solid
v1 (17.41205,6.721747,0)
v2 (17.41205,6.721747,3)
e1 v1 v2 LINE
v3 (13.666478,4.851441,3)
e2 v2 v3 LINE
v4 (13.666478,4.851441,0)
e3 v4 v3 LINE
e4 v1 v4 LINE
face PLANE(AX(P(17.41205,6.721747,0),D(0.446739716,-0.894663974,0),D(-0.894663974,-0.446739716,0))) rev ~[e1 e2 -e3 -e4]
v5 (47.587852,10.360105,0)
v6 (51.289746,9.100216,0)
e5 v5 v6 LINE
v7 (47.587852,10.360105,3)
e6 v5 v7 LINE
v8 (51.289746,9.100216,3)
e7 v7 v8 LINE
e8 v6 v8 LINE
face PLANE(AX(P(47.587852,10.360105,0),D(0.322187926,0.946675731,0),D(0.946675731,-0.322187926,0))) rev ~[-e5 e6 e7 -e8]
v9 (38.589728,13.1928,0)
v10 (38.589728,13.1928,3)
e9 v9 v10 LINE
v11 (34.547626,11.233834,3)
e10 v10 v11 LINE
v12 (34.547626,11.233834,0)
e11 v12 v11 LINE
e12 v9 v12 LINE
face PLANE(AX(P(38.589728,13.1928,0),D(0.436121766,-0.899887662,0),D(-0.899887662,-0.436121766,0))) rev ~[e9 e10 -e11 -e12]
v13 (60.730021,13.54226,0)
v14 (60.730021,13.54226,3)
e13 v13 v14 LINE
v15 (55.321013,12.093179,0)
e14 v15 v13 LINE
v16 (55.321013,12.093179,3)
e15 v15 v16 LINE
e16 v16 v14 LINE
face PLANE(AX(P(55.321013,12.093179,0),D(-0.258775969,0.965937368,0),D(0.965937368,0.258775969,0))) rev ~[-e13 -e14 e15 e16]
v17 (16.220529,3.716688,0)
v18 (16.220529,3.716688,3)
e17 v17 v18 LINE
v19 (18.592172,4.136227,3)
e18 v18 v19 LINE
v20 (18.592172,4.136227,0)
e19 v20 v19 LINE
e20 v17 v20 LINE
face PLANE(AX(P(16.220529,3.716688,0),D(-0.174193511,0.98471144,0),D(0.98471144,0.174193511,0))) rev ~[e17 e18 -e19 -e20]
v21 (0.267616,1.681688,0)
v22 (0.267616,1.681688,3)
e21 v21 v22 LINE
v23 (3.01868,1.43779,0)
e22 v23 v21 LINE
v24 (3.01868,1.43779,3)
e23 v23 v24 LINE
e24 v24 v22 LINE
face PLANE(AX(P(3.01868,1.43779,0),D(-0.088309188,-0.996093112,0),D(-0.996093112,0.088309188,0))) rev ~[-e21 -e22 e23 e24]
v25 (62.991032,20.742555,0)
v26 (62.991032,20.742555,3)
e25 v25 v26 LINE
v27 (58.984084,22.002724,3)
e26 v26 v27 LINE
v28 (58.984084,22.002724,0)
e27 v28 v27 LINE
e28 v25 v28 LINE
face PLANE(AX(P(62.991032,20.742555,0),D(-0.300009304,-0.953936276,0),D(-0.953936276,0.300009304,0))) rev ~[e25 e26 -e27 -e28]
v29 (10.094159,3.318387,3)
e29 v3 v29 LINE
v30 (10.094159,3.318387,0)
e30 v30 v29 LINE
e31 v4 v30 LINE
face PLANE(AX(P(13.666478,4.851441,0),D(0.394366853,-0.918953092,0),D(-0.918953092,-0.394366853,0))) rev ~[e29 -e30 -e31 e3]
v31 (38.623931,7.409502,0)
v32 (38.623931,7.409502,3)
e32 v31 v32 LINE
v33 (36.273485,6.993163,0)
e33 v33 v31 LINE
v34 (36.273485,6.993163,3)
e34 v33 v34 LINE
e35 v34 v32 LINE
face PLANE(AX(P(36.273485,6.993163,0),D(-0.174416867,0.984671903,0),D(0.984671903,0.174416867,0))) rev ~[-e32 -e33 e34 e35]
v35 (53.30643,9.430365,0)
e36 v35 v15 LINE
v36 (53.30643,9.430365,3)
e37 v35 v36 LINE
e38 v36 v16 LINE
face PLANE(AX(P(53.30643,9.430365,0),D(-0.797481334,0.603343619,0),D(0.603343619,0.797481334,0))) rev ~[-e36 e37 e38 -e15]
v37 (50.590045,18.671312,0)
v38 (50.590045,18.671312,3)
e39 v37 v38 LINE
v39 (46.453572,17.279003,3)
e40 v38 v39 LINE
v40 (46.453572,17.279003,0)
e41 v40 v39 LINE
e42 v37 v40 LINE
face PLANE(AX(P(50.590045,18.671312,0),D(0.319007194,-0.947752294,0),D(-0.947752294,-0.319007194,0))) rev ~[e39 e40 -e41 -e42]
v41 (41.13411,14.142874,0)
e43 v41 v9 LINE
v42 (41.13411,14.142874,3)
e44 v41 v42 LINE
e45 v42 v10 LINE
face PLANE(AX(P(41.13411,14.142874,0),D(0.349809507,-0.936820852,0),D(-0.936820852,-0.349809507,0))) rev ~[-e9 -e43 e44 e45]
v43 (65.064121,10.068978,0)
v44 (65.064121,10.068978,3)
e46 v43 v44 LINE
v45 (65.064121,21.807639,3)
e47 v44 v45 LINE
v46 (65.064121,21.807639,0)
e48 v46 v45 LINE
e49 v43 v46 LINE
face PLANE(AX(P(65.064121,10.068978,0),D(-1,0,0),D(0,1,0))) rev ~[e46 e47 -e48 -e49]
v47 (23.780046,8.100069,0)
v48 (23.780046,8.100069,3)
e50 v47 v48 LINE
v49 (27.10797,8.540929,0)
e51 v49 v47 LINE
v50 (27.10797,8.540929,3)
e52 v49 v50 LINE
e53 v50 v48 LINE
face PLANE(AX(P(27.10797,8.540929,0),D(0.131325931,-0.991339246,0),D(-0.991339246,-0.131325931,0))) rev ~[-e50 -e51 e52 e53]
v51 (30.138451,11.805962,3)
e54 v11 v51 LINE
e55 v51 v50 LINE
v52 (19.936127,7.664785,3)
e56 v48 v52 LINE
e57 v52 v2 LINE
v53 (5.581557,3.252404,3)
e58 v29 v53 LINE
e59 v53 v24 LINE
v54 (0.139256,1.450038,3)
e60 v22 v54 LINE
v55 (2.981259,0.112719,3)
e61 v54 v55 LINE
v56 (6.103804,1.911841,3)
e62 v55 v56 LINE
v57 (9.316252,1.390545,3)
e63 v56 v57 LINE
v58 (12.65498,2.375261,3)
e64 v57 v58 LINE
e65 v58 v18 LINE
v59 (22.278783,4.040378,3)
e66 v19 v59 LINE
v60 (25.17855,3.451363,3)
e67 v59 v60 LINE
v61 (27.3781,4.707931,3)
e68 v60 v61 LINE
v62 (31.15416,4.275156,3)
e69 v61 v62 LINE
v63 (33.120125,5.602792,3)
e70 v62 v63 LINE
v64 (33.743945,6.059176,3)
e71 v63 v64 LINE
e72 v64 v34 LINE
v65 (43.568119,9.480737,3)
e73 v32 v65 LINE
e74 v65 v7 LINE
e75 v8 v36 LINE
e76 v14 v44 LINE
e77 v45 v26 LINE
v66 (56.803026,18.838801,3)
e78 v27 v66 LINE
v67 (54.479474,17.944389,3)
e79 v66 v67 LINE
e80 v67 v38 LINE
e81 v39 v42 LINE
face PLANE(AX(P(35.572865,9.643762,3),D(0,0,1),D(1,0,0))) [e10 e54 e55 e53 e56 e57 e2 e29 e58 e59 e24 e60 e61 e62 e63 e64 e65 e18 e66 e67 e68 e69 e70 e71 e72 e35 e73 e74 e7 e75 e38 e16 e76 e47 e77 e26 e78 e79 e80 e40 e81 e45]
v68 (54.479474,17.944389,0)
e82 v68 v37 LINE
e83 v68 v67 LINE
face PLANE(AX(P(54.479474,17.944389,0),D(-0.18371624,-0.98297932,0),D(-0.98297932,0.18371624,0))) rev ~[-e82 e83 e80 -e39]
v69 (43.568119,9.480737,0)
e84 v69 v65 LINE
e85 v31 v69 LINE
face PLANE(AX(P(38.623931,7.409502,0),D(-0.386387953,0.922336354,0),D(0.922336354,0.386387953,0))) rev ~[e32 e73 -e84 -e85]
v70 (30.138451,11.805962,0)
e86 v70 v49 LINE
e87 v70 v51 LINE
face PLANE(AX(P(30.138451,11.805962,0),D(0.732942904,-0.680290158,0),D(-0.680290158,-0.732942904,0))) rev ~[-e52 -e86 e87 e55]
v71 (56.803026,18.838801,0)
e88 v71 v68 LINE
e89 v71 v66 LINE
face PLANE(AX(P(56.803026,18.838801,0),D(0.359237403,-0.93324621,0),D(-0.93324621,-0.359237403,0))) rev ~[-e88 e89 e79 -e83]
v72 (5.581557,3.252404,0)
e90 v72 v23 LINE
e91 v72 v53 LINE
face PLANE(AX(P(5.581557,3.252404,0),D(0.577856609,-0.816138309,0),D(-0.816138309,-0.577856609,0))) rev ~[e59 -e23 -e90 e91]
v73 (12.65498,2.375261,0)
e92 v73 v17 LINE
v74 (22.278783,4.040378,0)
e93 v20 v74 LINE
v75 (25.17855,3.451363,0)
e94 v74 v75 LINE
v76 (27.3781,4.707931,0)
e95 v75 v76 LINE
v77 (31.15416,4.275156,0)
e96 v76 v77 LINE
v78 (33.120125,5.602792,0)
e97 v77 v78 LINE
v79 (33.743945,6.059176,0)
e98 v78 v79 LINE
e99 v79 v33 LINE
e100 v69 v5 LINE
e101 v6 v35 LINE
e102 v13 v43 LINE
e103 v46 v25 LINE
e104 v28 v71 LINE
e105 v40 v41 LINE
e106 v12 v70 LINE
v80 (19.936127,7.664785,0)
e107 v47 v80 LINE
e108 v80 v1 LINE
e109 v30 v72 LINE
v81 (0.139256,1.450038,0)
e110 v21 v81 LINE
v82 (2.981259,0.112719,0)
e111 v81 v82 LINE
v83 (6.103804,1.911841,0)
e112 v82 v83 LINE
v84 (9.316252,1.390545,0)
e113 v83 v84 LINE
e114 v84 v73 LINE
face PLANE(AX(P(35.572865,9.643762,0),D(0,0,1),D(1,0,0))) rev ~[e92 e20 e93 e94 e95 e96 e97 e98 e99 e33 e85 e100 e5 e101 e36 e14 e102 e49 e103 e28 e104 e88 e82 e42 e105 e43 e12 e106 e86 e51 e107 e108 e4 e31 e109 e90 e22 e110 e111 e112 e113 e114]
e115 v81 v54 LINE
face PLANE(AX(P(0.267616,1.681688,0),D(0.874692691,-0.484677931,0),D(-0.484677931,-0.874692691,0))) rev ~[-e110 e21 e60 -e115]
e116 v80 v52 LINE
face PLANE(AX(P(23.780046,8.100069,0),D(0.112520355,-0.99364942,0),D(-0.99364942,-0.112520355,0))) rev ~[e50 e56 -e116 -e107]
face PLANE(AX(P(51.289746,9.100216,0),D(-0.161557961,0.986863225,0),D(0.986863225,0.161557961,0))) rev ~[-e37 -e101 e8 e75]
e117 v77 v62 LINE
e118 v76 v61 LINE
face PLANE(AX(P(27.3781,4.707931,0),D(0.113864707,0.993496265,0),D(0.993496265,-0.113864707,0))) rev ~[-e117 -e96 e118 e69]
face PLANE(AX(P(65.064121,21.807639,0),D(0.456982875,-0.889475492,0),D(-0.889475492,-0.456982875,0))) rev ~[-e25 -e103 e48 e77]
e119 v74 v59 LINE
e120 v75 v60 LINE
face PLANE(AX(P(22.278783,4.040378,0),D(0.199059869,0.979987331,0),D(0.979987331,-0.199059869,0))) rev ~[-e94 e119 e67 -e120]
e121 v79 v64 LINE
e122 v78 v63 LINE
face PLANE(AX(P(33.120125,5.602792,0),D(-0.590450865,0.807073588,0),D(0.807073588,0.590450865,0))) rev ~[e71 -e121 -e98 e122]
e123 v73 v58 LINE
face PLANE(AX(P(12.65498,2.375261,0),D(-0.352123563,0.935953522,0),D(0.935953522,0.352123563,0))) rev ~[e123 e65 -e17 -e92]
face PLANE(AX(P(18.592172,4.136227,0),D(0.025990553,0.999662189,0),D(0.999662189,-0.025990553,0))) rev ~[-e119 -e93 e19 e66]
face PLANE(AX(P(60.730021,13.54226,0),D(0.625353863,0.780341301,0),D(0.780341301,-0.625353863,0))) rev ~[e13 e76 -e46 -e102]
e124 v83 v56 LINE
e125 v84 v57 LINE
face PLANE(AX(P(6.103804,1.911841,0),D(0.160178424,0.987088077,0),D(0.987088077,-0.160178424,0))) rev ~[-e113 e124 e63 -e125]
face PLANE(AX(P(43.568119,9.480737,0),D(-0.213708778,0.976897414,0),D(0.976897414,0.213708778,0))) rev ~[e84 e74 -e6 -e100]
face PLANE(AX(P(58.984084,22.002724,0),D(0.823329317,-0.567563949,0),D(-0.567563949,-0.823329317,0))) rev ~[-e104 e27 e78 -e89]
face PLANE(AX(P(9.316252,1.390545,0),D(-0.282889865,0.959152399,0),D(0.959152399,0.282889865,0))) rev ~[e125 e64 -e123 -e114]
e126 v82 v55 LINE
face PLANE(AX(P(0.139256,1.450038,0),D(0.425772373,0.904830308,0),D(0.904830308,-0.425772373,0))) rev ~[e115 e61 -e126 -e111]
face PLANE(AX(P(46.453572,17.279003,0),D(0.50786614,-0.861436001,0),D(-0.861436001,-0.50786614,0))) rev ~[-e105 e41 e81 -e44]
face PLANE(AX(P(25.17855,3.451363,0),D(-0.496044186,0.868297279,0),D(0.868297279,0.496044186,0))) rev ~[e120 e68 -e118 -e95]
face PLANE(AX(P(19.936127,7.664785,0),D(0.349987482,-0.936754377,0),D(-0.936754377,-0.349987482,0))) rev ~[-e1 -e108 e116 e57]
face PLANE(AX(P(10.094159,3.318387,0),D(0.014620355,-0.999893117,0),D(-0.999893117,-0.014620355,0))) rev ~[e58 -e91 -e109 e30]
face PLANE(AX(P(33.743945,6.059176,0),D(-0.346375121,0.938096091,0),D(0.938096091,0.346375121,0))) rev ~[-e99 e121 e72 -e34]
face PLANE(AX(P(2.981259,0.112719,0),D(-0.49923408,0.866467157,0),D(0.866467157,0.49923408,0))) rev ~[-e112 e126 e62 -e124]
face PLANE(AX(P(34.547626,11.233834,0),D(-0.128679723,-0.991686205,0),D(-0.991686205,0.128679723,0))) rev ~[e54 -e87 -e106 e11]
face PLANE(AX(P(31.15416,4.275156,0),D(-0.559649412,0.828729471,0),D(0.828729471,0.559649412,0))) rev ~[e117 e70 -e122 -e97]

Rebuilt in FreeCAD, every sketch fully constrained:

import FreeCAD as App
import Part
import Sketcher

doc = App.newDocument("Part")
body = doc.addObject("PartDesign::Body", "Body")

# Sketch on XY plane
sketch1 = doc.addObject("Sketcher::SketchObject", "Sketch")
body.addObject(sketch1)
sketch1.AttachmentSupport = (doc.XY_Plane, [""])
sketch1.MapMode = "FlatFace"
sketch1.addGeometry(Part.LineSegment(App.Vector(65.064121, 21.807639, 0), App.Vector(62.991032, 20.742555, 0)), False)
sketch1.addGeometry(Part.LineSegment(App.Vector(62.991032, 20.742555, 0), App.Vector(58.984084, 22.002724, 0)), False)
sketch1.addGeometry(Part.LineSegment(App.Vector(58.984084, 22.002724, 0), App.Vector(56.803026, 18.838801, 0)), False)
sketch1.addGeometry(Part.LineSegment(App.Vector(56.803026, 18.838801, 0), App.Vector(54.479474, 17.944389, 0)), False)
sketch1.addGeometry(Part.LineSegment(App.Vector(54.479474, 17.944389, 0), App.Vector(50.590045, 18.671312, 0)), False)
sketch1.addGeometry(Part.LineSegment(App.Vector(50.590045, 18.671312, 0), App.Vector(46.453572, 17.279003, 0)), False)
sketch1.addGeometry(Part.LineSegment(App.Vector(46.453572, 17.279003, 0), App.Vector(41.13411, 14.142874, 0)), False)
sketch1.addGeometry(Part.LineSegment(App.Vector(41.13411, 14.142874, 0), App.Vector(38.589728, 13.1928, 0)), False)
sketch1.addGeometry(Part.LineSegment(App.Vector(38.589728, 13.1928, 0), App.Vector(34.547626, 11.233834, 0)), False)
sketch1.addGeometry(Part.LineSegment(App.Vector(34.547626, 11.233834, 0), App.Vector(30.138451, 11.805962, 0)), False)
sketch1.addGeometry(Part.LineSegment(App.Vector(30.138451, 11.805962, 0), App.Vector(27.10797, 8.540929, 0)), False)
sketch1.addGeometry(Part.LineSegment(App.Vector(27.10797, 8.540929, 0), App.Vector(23.780046, 8.100069, 0)), False)
sketch1.addGeometry(Part.LineSegment(App.Vector(23.780046, 8.100069, 0), App.Vector(19.936127, 7.664785, 0)), False)
sketch1.addGeometry(Part.LineSegment(App.Vector(19.936127, 7.664785, 0), App.Vector(17.41205, 6.721747, 0)), False)
sketch1.addGeometry(Part.LineSegment(App.Vector(17.41205, 6.721747, 0), App.Vector(13.666478, 4.851441, 0)), False)
sketch1.addGeometry(Part.LineSegment(App.Vector(13.666478, 4.851441, 0), App.Vector(10.094159, 3.318387, 0)), False)
sketch1.addGeometry(Part.LineSegment(App.Vector(10.094159, 3.318387, 0), App.Vector(5.581557, 3.252404, 0)), False)
sketch1.addGeometry(Part.LineSegment(App.Vector(5.581557, 3.252404, 0), App.Vector(3.01868, 1.43779, 0)), False)
sketch1.addGeometry(Part.LineSegment(App.Vector(3.01868, 1.43779, 0), App.Vector(0.267616, 1.681688, 0)), False)
sketch1.addGeometry(Part.LineSegment(App.Vector(0.267616, 1.681688, 0), App.Vector(0.139256, 1.450038, 0)), False)
sketch1.addGeometry(Part.LineSegment(App.Vector(0.139256, 1.450038, 0), App.Vector(2.981259, 0.112719, 0)), False)
sketch1.addGeometry(Part.LineSegment(App.Vector(2.981259, 0.112719, 0), App.Vector(6.103804, 1.911841, 0)), False)
sketch1.addGeometry(Part.LineSegment(App.Vector(6.103804, 1.911841, 0), App.Vector(9.316252, 1.390545, 0)), False)
sketch1.addGeometry(Part.LineSegment(App.Vector(9.316252, 1.390545, 0), App.Vector(12.65498, 2.375261, 0)), False)
sketch1.addGeometry(Part.LineSegment(App.Vector(12.65498, 2.375261, 0), App.Vector(16.220529, 3.716688, 0)), False)
sketch1.addGeometry(Part.LineSegment(App.Vector(16.220529, 3.716688, 0), App.Vector(18.592172, 4.136227, 0)), False)
sketch1.addGeometry(Part.LineSegment(App.Vector(18.592172, 4.136227, 0), App.Vector(22.278783, 4.040378, 0)), False)
sketch1.addGeometry(Part.LineSegment(App.Vector(22.278783, 4.040378, 0), App.Vector(25.17855, 3.451363, 0)), False)
sketch1.addGeometry(Part.LineSegment(App.Vector(25.17855, 3.451363, 0), App.Vector(27.3781, 4.707931, 0)), False)
sketch1.addGeometry(Part.LineSegment(App.Vector(27.3781, 4.707931, 0), App.Vector(31.15416, 4.275156, 0)), False)
sketch1.addGeometry(Part.LineSegment(App.Vector(31.15416, 4.275156, 0), App.Vector(33.120125, 5.602792, 0)), False)
sketch1.addGeometry(Part.LineSegment(App.Vector(33.120125, 5.602792, 0), App.Vector(33.743945, 6.059176, 0)), False)
sketch1.addGeometry(Part.LineSegment(App.Vector(33.743945, 6.059176, 0), App.Vector(36.273485, 6.993163, 0)), False)
sketch1.addGeometry(Part.LineSegment(App.Vector(36.273485, 6.993163, 0), App.Vector(38.623931, 7.409502, 0)), False)
sketch1.addGeometry(Part.LineSegment(App.Vector(38.623931, 7.409502, 0), App.Vector(43.568119, 9.480737, 0)), False)
sketch1.addGeometry(Part.LineSegment(App.Vector(43.568119, 9.480737, 0), App.Vector(47.587852, 10.360105, 0)), False)
sketch1.addGeometry(Part.LineSegment(App.Vector(47.587852, 10.360105, 0), App.Vector(51.289746, 9.100216, 0)), False)
sketch1.addGeometry(Part.LineSegment(App.Vector(51.289746, 9.100216, 0), App.Vector(53.30643, 9.430365, 0)), False)
sketch1.addGeometry(Part.LineSegment(App.Vector(53.30643, 9.430365, 0), App.Vector(55.321013, 12.093179, 0)), False)
sketch1.addGeometry(Part.LineSegment(App.Vector(55.321013, 12.093179, 0), App.Vector(60.730021, 13.54226, 0)), False)
sketch1.addGeometry(Part.LineSegment(App.Vector(60.730021, 13.54226, 0), App.Vector(65.064121, 10.068978, 0)), False)
sketch1.addGeometry(Part.LineSegment(App.Vector(65.064121, 10.068978, 0), App.Vector(65.064121, 21.807639, 0)), False)
sketch1.addConstraint(Sketcher.Constraint("Coincident", 0, 2, 1, 1))
sketch1.addConstraint(Sketcher.Constraint("Coincident", 1, 2, 2, 1))
sketch1.addConstraint(Sketcher.Constraint("Coincident", 2, 2, 3, 1))
sketch1.addConstraint(Sketcher.Constraint("Coincident", 3, 2, 4, 1))
sketch1.addConstraint(Sketcher.Constraint("Coincident", 4, 2, 5, 1))
sketch1.addConstraint(Sketcher.Constraint("Coincident", 5, 2, 6, 1))
sketch1.addConstraint(Sketcher.Constraint("Coincident", 6, 2, 7, 1))
sketch1.addConstraint(Sketcher.Constraint("Coincident", 7, 2, 8, 1))
sketch1.addConstraint(Sketcher.Constraint("Coincident", 8, 2, 9, 1))
sketch1.addConstraint(Sketcher.Constraint("Coincident", 9, 2, 10, 1))
sketch1.addConstraint(Sketcher.Constraint("Coincident", 10, 2, 11, 1))
sketch1.addConstraint(Sketcher.Constraint("Coincident", 11, 2, 12, 1))
sketch1.addConstraint(Sketcher.Constraint("Coincident", 12, 2, 13, 1))
sketch1.addConstraint(Sketcher.Constraint("Coincident", 13, 2, 14, 1))
sketch1.addConstraint(Sketcher.Constraint("Coincident", 14, 2, 15, 1))
sketch1.addConstraint(Sketcher.Constraint("Coincident", 15, 2, 16, 1))
sketch1.addConstraint(Sketcher.Constraint("Coincident", 16, 2, 17, 1))
sketch1.addConstraint(Sketcher.Constraint("Coincident", 17, 2, 18, 1))
sketch1.addConstraint(Sketcher.Constraint("Coincident", 18, 2, 19, 1))
sketch1.addConstraint(Sketcher.Constraint("Coincident", 19, 2, 20, 1))
sketch1.addConstraint(Sketcher.Constraint("Coincident", 20, 2, 21, 1))
sketch1.addConstraint(Sketcher.Constraint("Coincident", 21, 2, 22, 1))
sketch1.addConstraint(Sketcher.Constraint("Coincident", 22, 2, 23, 1))
sketch1.addConstraint(Sketcher.Constraint("Coincident", 23, 2, 24, 1))
sketch1.addConstraint(Sketcher.Constraint("Coincident", 24, 2, 25, 1))
sketch1.addConstraint(Sketcher.Constraint("Coincident", 25, 2, 26, 1))
sketch1.addConstraint(Sketcher.Constraint("Coincident", 26, 2, 27, 1))
sketch1.addConstraint(Sketcher.Constraint("Coincident", 27, 2, 28, 1))
sketch1.addConstraint(Sketcher.Constraint("Coincident", 28, 2, 29, 1))
sketch1.addConstraint(Sketcher.Constraint("Coincident", 29, 2, 30, 1))
sketch1.addConstraint(Sketcher.Constraint("Coincident", 30, 2, 31, 1))
sketch1.addConstraint(Sketcher.Constraint("Coincident", 31, 2, 32, 1))
sketch1.addConstraint(Sketcher.Constraint("Coincident", 32, 2, 33, 1))
sketch1.addConstraint(Sketcher.Constraint("Coincident", 33, 2, 34, 1))
sketch1.addConstraint(Sketcher.Constraint("Coincident", 34, 2, 35, 1))
sketch1.addConstraint(Sketcher.Constraint("Coincident", 35, 2, 36, 1))
sketch1.addConstraint(Sketcher.Constraint("Coincident", 36, 2, 37, 1))
sketch1.addConstraint(Sketcher.Constraint("Coincident", 37, 2, 38, 1))
sketch1.addConstraint(Sketcher.Constraint("Coincident", 38, 2, 39, 1))
sketch1.addConstraint(Sketcher.Constraint("Coincident", 39, 2, 40, 1))
sketch1.addConstraint(Sketcher.Constraint("Coincident", 40, 2, 41, 1))
sketch1.addConstraint(Sketcher.Constraint("Coincident", 41, 2, 0, 1))
sketch1.addConstraint(Sketcher.Constraint("Vertical", 41))
sketch1.addConstraint(Sketcher.Constraint("DistanceY", 7, 2, 2, 2, 5.646001))
sketch1.addConstraint(Sketcher.Constraint("DistanceY", 28, 2, 10, 2, 3.832999))
sketch1.addConstraint(Sketcher.Constraint("DistanceY", 41, 1, 41, 2, 11.738661))
sketch1.addConstraint(Sketcher.Constraint("DistanceY", -1, 1, 2, 2, 18.838801))
sketch1.addConstraint(Sketcher.Constraint("DistanceX", -1, 1, 28, 2, 27.3781))
sketch1.addConstraint(Sketcher.Constraint("DistanceX", 5, 2, 3, 2, 8.025901))
sketch1.addConstraint(Sketcher.Constraint("DistanceY", 5, 2, 2, 2, 1.559798))
sketch1.addConstraint(Sketcher.Constraint("DistanceX", 12, 2, 8, 2, 14.611498))
sketch1.addConstraint(Sketcher.Constraint("DistanceX", 12, 2, 7, 2, 18.653601))
sketch1.addConstraint(Sketcher.Constraint("DistanceX", 13, 2, 9, 2, 12.726401))
sketch1.addConstraint(Sketcher.Constraint("DistanceY", 15, 2, 12, 2, 4.346398))
sketch1.addConstraint(Sketcher.Constraint("DistanceX", 16, 2, 15, 2, 4.512602))
sketch1.addConstraint(Sketcher.Constraint("DistanceX", 17, 2, 14, 2, 10.647799))
sketch1.addConstraint(Sketcher.Constraint("DistanceY", 18, 2, 15, 2, 1.636699))
sketch1.addConstraint(Sketcher.Constraint("DistanceX", 19, 2, 16, 2, 5.442302))
sketch1.addConstraint(Sketcher.Constraint("DistanceX", 20, 2, 16, 2, 2.600298))
sketch1.addConstraint(Sketcher.Constraint("DistanceX", 23, 2, 14, 2, 1.011498))
sketch1.addConstraint(Sketcher.Constraint("DistanceX", 24, 2, 12, 2, 3.715598))
sketch1.addConstraint(Sketcher.Constraint("DistanceY", 15, 2, 24, 2, 0.398301))
sketch1.addConstraint(Sketcher.Constraint("DistanceX", 30, 2, 8, 2, 1.427501))
sketch1.addConstraint(Sketcher.Constraint("DistanceY", 35, 2, 5, 2, 6.918898))
sketch1.addConstraint(Sketcher.Constraint("DistanceX", 4, 2, 36, 2, 0.699701))
sketch1.addConstraint(Sketcher.Constraint("DistanceX", 39, 2, 40, 2, 4.3341))
sketch1.addConstraint(Sketcher.Constraint("DistanceY", 40, 2, 38, 2, 2.024202))
sketch1.addConstraint(Sketcher.Constraint("Distance", 2, 3.842841))
sketch1.addConstraint(Sketcher.Constraint("Distance", 5, 4.364509))
sketch1.addConstraint(Sketcher.Constraint("Distance", 6, 6.17511))
sketch1.addConstraint(Sketcher.Constraint("Distance", 9, 4.446139))
sketch1.addConstraint(Sketcher.Constraint("Distance", 10, 4.454689))
sketch1.addConstraint(Sketcher.Constraint("Distance", 15, 3.887379))
sketch1.addConstraint(Sketcher.Constraint("Distance", 17, 3.140249))
sketch1.addConstraint(Sketcher.Constraint("Distance", 22, 3.25447))
sketch1.addConstraint(Sketcher.Constraint("Distance", 29, 3.800779))
sketch1.addConstraint(Sketcher.Constraint("Distance", 31, 0.772942))
sketch1.addConstraint(Sketcher.Constraint("Distance", 32, 2.696461))
sketch1.addConstraint(Sketcher.Constraint("Distance", 37, 2.043529))
sketch1.addConstraint(Sketcher.Constraint("Distance", 38, 3.339031))
sketch1.addConstraint(Sketcher.Constraint("Distance", 39, 5.599751))
sketch1.addConstraint(Sketcher.Constraint("DistanceY", -1, 1, 3, 2, 17.944389))
sketch1.addConstraint(Sketcher.Constraint("DistanceX", -1, 1, 6, 2, 41.13411))
sketch1.addConstraint(Sketcher.Constraint("DistanceX", -1, 1, 7, 2, 38.589728))
sketch1.addConstraint(Sketcher.Constraint("DistanceX", -1, 1, 9, 2, 30.138451))
sketch1.addConstraint(Sketcher.Constraint("DistanceX", -1, 1, 10, 2, 27.10797))
sketch1.addConstraint(Sketcher.Constraint("DistanceY", -1, 1, 10, 2, 8.540929))
sketch1.addConstraint(Sketcher.Constraint("DistanceY", -1, 1, 11, 2, 8.100069))
sketch1.addConstraint(Sketcher.Constraint("DistanceX", -1, 1, 14, 2, 13.666478))
sketch1.addConstraint(Sketcher.Constraint("DistanceY", -1, 1, 14, 2, 4.851441))
sketch1.addConstraint(Sketcher.Constraint("DistanceX", -1, 1, 15, 2, 10.094159))
sketch1.addConstraint(Sketcher.Constraint("DistanceY", -1, 1, 17, 2, 1.43779))
sketch1.addConstraint(Sketcher.Constraint("DistanceY", -1, 1, 20, 2, 0.112719))
sketch1.addConstraint(Sketcher.Constraint("DistanceY", -1, 1, 21, 2, 1.911841))
sketch1.addConstraint(Sketcher.Constraint("DistanceY", -1, 1, 23, 2, 2.375261))
sketch1.addConstraint(Sketcher.Constraint("DistanceX", -1, 1, 27, 2, 25.17855))
sketch1.addConstraint(Sketcher.Constraint("DistanceX", -1, 1, 29, 2, 31.15416))
sketch1.addConstraint(Sketcher.Constraint("DistanceX", -1, 1, 33, 2, 38.623931))
sketch1.addConstraint(Sketcher.Constraint("DistanceX", -1, 1, 34, 2, 43.568119))
sketch1.addConstraint(Sketcher.Constraint("DistanceX", -1, 1, 35, 2, 47.587852))
sketch1.addConstraint(Sketcher.Constraint("DistanceX", -1, 1, 37, 2, 53.30643))
sketch1.addConstraint(Sketcher.Constraint("DistanceY", -1, 1, 38, 2, 12.093179))
sketch1.addConstraint(Sketcher.Constraint("DistanceX", -1, 1, 39, 2, 60.730021))
sketch1.addConstraint(Sketcher.Constraint("DistanceY", -1, 1, 39, 2, 13.54226))
sketch1.addConstraint(Sketcher.Constraint("DistanceX", 1, 2, 0, 2, 4.006948))
sketch1.addConstraint(Sketcher.Constraint("DistanceY", 0, 2, 1, 2, 1.26017))
sketch1.addConstraint(Sketcher.Constraint("DistanceX", 3, 2, 1, 2, 4.50461))
sketch1.addConstraint(Sketcher.Constraint("DistanceX", 4, 2, 3, 2, 3.889428))
sketch1.addConstraint(Sketcher.Constraint("DistanceX", 4, 2, 2, 2, 6.212981))
sketch1.addConstraint(Sketcher.Constraint("DistanceY", 6, 2, 5, 2, 3.136129))
sketch1.addConstraint(Sketcher.Constraint("DistanceX", 11, 2, 8, 2, 10.767579))
sketch1.addConstraint(Sketcher.Constraint("DistanceY", 13, 2, 12, 2, 0.943039))
sketch1.addConstraint(Sketcher.Constraint("DistanceX", 18, 2, 16, 2, 5.313942))
sketch1.addConstraint(Sketcher.Constraint("DistanceY", 19, 2, 18, 2, 0.23165))
sketch1.addConstraint(Sketcher.Constraint("DistanceY", 22, 2, 15, 2, 1.927842))
sketch1.addConstraint(Sketcher.Constraint("DistanceY", 24, 2, 25, 2, 0.419539))
sketch1.addConstraint(Sketcher.Constraint("DistanceX", 25, 2, 26, 2, 3.68661))
sketch1.addConstraint(Sketcher.Constraint("DistanceY", 26, 2, 25, 2, 0.095849))
sketch1.addConstraint(Sketcher.Constraint("DistanceY", 28, 2, 30, 2, 0.894861))
sketch1.addConstraint(Sketcher.Constraint("DistanceX", 30, 2, 31, 2, 0.623821))
sketch1.addConstraint(Sketcher.Constraint("DistanceX", 31, 2, 32, 2, 2.52954))
sketch1.addConstraint(Sketcher.Constraint("DistanceY", 32, 2, 33, 2, 0.416339))
sketch1.addConstraint(Sketcher.Constraint("DistanceY", 36, 2, 34, 2, 0.38052))
sketch1.addConstraint(Sketcher.Constraint("Distance", 21, 3.603765))
sketch1.addConstraint(Sketcher.Constraint("Distance", 25, 2.408465))
sketch1.addConstraint(Sketcher.Constraint("Distance", 27, 2.958984))
pad1 = doc.addObject("PartDesign::Pad", "Pad")
body.addObject(pad1)
pad1.Profile = sketch1
pad1.Length = 3

doc.recompute()
